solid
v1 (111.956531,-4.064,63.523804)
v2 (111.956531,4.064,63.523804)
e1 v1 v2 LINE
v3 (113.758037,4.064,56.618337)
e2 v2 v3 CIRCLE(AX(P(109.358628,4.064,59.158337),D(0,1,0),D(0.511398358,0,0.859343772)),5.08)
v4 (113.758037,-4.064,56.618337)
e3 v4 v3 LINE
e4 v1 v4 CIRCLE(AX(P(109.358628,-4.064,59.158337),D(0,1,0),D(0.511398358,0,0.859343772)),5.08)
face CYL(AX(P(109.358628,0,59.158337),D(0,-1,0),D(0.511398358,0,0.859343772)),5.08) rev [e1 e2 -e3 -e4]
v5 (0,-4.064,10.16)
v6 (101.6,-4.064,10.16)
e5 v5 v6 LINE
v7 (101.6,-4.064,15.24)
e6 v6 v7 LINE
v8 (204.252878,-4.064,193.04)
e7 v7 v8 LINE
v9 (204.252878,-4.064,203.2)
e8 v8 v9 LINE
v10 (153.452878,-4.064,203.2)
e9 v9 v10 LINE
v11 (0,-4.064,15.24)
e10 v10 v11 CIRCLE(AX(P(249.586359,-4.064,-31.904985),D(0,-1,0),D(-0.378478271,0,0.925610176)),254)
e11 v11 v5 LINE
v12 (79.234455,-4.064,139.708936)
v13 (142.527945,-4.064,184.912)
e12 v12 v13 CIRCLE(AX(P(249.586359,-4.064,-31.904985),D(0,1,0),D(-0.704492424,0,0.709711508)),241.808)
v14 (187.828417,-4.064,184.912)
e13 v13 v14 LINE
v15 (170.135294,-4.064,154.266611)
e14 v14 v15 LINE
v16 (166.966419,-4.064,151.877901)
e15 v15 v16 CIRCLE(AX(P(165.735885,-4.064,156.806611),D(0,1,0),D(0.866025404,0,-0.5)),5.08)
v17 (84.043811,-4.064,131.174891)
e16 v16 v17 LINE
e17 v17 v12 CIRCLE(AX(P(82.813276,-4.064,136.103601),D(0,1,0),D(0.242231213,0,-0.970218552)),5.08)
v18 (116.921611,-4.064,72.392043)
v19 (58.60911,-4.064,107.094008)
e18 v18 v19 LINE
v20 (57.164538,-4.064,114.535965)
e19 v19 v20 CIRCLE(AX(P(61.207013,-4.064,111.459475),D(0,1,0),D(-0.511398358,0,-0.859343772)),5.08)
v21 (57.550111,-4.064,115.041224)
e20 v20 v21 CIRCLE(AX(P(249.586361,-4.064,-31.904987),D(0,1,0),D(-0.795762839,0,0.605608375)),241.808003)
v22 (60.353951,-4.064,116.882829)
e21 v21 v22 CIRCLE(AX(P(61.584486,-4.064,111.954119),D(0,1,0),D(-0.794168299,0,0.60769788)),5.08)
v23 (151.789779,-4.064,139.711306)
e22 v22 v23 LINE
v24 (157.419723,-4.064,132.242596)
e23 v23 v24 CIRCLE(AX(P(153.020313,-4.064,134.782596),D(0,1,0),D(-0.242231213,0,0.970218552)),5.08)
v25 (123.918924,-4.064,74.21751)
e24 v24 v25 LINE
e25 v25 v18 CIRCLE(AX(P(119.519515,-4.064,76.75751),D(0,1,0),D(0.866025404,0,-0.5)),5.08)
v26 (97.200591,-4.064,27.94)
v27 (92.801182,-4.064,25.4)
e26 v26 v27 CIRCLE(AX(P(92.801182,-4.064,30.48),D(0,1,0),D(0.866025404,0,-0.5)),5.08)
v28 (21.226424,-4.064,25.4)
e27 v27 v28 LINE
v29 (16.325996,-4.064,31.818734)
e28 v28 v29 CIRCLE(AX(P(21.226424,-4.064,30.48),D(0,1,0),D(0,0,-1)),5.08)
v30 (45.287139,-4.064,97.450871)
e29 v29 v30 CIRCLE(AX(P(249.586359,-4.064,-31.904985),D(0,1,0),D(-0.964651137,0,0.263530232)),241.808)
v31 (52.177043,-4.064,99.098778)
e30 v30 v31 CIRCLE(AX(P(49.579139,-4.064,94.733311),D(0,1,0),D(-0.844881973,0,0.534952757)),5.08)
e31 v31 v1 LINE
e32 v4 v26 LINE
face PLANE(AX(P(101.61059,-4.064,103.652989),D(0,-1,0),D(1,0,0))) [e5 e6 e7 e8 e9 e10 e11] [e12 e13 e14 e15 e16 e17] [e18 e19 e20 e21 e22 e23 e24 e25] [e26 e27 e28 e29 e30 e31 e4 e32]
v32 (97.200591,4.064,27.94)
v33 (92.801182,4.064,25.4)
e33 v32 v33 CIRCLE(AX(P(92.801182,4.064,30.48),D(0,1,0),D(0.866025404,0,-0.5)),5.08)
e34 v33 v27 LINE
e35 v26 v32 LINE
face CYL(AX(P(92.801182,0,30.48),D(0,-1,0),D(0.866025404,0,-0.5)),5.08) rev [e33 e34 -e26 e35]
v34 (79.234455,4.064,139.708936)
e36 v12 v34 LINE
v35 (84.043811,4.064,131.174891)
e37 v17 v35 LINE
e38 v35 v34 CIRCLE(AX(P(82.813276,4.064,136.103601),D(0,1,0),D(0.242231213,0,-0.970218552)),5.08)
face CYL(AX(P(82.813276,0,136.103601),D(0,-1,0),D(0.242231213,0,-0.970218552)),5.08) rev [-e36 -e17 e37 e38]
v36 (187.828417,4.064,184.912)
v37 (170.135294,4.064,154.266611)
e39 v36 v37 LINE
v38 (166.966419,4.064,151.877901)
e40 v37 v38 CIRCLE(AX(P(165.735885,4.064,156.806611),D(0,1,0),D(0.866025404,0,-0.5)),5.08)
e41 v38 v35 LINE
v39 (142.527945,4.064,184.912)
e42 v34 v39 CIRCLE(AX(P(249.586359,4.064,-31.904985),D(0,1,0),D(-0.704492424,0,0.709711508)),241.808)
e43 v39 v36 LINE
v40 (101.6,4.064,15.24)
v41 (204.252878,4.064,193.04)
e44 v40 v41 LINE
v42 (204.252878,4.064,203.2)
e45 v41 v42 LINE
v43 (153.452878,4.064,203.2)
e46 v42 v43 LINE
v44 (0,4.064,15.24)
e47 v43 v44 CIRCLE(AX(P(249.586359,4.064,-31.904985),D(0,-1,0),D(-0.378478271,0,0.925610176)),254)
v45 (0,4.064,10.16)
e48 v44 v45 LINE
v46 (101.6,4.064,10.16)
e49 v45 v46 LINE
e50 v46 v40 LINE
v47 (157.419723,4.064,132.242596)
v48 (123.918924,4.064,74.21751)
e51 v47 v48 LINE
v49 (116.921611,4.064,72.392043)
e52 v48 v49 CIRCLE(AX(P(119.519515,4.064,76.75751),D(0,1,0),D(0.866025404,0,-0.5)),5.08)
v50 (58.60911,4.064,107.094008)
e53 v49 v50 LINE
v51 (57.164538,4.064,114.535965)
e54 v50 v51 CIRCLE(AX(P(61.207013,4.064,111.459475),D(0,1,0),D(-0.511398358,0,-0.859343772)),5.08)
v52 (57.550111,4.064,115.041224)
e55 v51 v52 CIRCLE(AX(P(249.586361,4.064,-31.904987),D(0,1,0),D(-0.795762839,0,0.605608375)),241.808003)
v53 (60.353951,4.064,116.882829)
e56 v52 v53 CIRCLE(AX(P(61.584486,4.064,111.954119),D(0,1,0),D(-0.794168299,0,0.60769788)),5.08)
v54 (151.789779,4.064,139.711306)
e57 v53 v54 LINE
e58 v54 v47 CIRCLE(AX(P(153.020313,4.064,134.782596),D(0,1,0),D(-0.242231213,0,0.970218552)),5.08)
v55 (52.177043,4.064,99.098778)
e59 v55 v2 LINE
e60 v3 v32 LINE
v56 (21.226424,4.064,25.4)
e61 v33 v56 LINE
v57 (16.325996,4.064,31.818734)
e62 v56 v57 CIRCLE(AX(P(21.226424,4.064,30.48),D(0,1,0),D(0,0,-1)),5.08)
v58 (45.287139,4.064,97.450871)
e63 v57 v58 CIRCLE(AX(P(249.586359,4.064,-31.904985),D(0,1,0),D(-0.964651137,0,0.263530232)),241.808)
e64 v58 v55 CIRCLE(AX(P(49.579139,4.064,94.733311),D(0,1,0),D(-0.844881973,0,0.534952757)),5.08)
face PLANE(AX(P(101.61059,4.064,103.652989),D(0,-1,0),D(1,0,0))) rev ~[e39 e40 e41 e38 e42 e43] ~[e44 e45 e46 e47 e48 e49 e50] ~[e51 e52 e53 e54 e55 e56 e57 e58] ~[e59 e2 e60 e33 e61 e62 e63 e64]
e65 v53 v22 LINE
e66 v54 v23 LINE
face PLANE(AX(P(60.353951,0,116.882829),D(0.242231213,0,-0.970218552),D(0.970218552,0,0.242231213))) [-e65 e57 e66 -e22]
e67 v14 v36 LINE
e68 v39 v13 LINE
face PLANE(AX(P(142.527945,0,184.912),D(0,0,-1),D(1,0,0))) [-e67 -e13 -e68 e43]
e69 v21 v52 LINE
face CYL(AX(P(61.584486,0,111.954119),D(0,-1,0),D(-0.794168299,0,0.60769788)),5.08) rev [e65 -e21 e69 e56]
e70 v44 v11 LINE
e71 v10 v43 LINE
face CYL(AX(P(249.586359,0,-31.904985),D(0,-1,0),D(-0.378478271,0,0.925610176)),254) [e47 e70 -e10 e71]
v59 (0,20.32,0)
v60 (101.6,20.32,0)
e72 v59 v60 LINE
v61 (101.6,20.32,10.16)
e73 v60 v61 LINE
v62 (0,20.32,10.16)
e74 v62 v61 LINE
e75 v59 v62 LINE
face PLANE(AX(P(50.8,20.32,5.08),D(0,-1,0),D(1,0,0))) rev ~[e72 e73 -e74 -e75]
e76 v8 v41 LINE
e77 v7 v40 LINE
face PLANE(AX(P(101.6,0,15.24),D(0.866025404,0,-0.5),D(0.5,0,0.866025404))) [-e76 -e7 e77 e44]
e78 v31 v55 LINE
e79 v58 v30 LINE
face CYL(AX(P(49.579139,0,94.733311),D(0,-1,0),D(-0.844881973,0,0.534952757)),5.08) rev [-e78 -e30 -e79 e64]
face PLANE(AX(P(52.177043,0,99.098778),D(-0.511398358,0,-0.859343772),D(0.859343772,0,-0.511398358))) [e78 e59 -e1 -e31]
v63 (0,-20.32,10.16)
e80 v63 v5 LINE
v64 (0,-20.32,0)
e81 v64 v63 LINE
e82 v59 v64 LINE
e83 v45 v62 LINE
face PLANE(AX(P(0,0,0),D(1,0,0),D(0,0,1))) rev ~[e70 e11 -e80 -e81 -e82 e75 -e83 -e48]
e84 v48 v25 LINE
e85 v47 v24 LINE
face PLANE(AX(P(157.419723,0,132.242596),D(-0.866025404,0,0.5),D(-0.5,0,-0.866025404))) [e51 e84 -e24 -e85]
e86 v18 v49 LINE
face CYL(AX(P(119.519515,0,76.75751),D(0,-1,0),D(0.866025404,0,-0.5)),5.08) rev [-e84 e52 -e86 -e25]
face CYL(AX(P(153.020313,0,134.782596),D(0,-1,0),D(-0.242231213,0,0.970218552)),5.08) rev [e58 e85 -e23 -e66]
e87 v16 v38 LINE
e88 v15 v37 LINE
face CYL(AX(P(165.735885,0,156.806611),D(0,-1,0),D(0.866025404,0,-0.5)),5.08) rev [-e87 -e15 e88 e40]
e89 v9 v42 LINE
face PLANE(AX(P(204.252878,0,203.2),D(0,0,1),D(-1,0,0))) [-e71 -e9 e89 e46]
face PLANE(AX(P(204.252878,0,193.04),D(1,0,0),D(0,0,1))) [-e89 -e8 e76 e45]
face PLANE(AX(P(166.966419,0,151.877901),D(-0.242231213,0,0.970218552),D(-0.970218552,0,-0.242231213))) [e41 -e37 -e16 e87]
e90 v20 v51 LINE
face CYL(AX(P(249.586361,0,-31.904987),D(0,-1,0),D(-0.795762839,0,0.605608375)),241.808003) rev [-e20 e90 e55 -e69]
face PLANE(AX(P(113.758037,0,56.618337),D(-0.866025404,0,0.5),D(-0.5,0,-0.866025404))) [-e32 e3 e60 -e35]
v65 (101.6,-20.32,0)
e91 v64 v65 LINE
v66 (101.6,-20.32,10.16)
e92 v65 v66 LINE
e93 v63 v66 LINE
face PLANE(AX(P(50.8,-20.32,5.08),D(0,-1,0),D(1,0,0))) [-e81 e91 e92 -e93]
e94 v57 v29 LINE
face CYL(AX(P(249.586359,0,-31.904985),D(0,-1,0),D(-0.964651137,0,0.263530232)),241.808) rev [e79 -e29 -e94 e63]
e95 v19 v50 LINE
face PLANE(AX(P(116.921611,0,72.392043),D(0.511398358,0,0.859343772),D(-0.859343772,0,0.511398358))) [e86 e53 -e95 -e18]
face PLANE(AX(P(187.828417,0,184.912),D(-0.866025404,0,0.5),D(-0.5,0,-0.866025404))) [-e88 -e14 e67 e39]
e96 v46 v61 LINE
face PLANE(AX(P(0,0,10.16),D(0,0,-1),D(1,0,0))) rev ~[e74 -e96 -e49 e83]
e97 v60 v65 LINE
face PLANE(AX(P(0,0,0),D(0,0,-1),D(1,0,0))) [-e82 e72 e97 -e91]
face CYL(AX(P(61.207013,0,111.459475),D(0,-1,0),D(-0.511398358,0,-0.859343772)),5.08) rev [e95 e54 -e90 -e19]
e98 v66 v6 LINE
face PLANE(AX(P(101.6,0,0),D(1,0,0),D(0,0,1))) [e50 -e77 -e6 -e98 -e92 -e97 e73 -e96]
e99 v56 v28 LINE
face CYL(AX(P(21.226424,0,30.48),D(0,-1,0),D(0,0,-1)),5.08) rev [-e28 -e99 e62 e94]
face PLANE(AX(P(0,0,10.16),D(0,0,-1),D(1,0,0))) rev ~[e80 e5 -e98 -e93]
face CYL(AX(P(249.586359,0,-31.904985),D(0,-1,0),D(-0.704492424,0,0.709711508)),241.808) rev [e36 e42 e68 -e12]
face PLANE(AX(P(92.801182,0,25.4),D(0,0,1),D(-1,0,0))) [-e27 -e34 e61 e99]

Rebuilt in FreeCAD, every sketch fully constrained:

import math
import FreeCAD as App
import Part
import Sketcher
from FreeCAD import Vector
Q = App.Units.Quantity


def add_polygon(sketch, points):
    """Adds a closed chain of lines whose ends are joined by coincident constraints."""
    first, n = sketch.GeometryCount, len(points)
    for a, b in zip(points, points[1:] + points[:1]):
        sketch.addGeometry(Part.LineSegment(App.Vector(*a, 0), App.Vector(*b, 0)), False)
    for i in range(n):
        sketch.addConstraint(Sketcher.Constraint("Coincident", first + i, 2, first + (i + 1) % n, 1))

doc = App.newDocument("Part")
body = doc.addObject("PartDesign::Body", "Body")

sketch1 = doc.addObject("Sketcher::SketchObject", "Sketch")
body.addObject(sketch1)
sketch1.AttachmentSupport = (doc.XZ_Plane, [""])
sketch1.MapMode = "FlatFace"
sketch1.addGeometry([
    Part.ArcOfCircle(Part.Circle(Vector(249.586359, -31.904985, 0), Vector(0, 0, 1), 254), math.radians(112.239455), math.radians(169.303291)),
    Part.LineSegment(Vector(0, 15.24, 0), Vector(0, 10.16, 0)),
    Part.LineSegment(Vector(0, 10.16, 0), Vector(101.6, 10.16, 0)),
    Part.LineSegment(Vector(101.6, 10.16, 0), Vector(101.6, 15.24, 0)),
    Part.LineSegment(Vector(101.6, 15.24, 0), Vector(204.252878, 193.04, 0)),
    Part.LineSegment(Vector(204.252878, 193.04, 0), Vector(204.252878, 203.2, 0)),
    Part.LineSegment(Vector(204.252878, 203.2, 0), Vector(153.452878, 203.2, 0)),
    Part.ArcOfCircle(Part.Circle(Vector(92.801182, 30.48, 0), Vector(0, 0, 1), 5.08), math.radians(-90), math.radians(-30)),
    Part.LineSegment(Vector(92.801182, 25.4, 0), Vector(21.226424, 25.4, 0)),
    Part.ArcOfCircle(Part.Circle(Vector(21.226424, 30.48, 0), Vector(0, 0, 1), 5.08), math.radians(164.720363), math.radians(270)),
    Part.ArcOfCircle(Part.Circle(Vector(249.586359, -31.904985, 0), Vector(0, 0, 1), 241.808), math.radians(147.659292), math.radians(164.720363)),
    Part.ArcOfCircle(Part.Circle(Vector(49.579139, 94.733311, 0), Vector(0, 0, 1), 5.08), math.radians(59.242981), math.radians(147.659292)),
    Part.LineSegment(Vector(52.177043, 99.098778, 0), Vector(111.956531, 63.523804, 0)),
    Part.ArcOfCircle(Part.Circle(Vector(109.358628, 59.158337, 0), Vector(0, 0, 1), 5.08), math.radians(-30), math.radians(59.242981)),
    Part.LineSegment(Vector(113.758037, 56.618337, 0), Vector(97.200591, 27.94, 0)),
    Part.ArcOfCircle(Part.Circle(Vector(61.584486, 111.954119, 0), Vector(0, 0, 1), 5.08), math.radians(104.018266), math.radians(142.57677)),
    Part.LineSegment(Vector(60.353951, 116.882829, 0), Vector(151.789779, 139.711306, 0)),
    Part.ArcOfCircle(Part.Circle(Vector(153.020313, 134.782596, 0), Vector(0, 0, 1), 5.08), math.radians(-30), math.radians(104.018266)),
    Part.LineSegment(Vector(157.419723, 132.242596, 0), Vector(123.918924, 74.21751, 0)),
    Part.ArcOfCircle(Part.Circle(Vector(119.519515, 76.75751, 0), Vector(0, 0, 1), 5.08), math.radians(-120.757019), math.radians(-30)),
    Part.LineSegment(Vector(116.921611, 72.392043, 0), Vector(58.60911, 107.094008, 0)),
    Part.ArcOfCircle(Part.Circle(Vector(61.207013, 111.459475, 0), Vector(0, 0, 1), 5.08), math.radians(142.727367), math.radians(239.242981)),
    Part.ArcOfCircle(Part.Circle(Vector(249.586361, -31.904987, 0), Vector(0, 0, 1), 241.808003), math.radians(142.57677), math.radians(142.727367)),
    Part.ArcOfCircle(Part.Circle(Vector(249.586359, -31.904985, 0), Vector(0, 0, 1), 241.808), math.radians(116.278925), math.radians(134.788552)),
    Part.LineSegment(Vector(142.527945, 184.912, 0), Vector(187.828417, 184.912, 0)),
    Part.LineSegment(Vector(187.828417, 184.912, 0), Vector(170.135294, 154.266611, 0)),
    Part.ArcOfCircle(Part.Circle(Vector(165.735885, 156.806611, 0), Vector(0, 0, 1), 5.08), math.radians(-75.981734), math.radians(-30)),
    Part.LineSegment(Vector(166.966419, 151.877901, 0), Vector(84.043811, 131.174891, 0)),
    Part.ArcOfCircle(Part.Circle(Vector(82.813276, 136.103601, 0), Vector(0, 0, 1), 5.08), math.radians(134.788552), math.radians(284.018266)),
], False)
sketch1.addConstraint([
    Sketcher.Constraint("Coincident", 0, 2, 1, 1),
    Sketcher.Constraint("Coincident", 1, 2, 2, 1),
    Sketcher.Constraint("Coincident", 2, 2, 3, 1),
    Sketcher.Constraint("Coincident", 3, 2, 4, 1),
    Sketcher.Constraint("Coincident", 4, 2, 5, 1),
    Sketcher.Constraint("Coincident", 5, 2, 6, 1),
    Sketcher.Constraint("Coincident", 6, 2, 0, 1),
    Sketcher.Constraint("Coincident", 7, 1, 8, 1),
    Sketcher.Constraint("Coincident", 8, 2, 9, 2),
    Sketcher.Constraint("Coincident", 9, 1, 10, 2),
    Sketcher.Constraint("Coincident", 10, 1, 11, 2),
    Sketcher.Constraint("Coincident", 11, 1, 12, 1),
    Sketcher.Constraint("Coincident", 12, 2, 13, 2),
    Sketcher.Constraint("Coincident", 13, 1, 14, 1),
    Sketcher.Constraint("Coincident", 14, 2, 7, 2),
    Sketcher.Constraint("Coincident", 15, 1, 16, 1),
    Sketcher.Constraint("Coincident", 16, 2, 17, 2),
    Sketcher.Constraint("Coincident", 17, 1, 18, 1),
    Sketcher.Constraint("Coincident", 18, 2, 19, 2),
    Sketcher.Constraint("Coincident", 19, 1, 20, 1),
    Sketcher.Constraint("Coincident", 20, 2, 21, 2),
    Sketcher.Constraint("Coincident", 21, 1, 22, 2),
    Sketcher.Constraint("Coincident", 22, 1, 15, 2),
    Sketcher.Constraint("Coincident", 23, 1, 24, 1),
    Sketcher.Constraint("Coincident", 24, 2, 25, 1),
    Sketcher.Constraint("Coincident", 25, 2, 26, 2),
    Sketcher.Constraint("Coincident", 26, 1, 27, 1),
    Sketcher.Constraint("Coincident", 27, 2, 28, 2),
    Sketcher.Constraint("Coincident", 28, 1, 23, 2),
    Sketcher.Constraint("Vertical", 1),
    Sketcher.Constraint("Horizontal", 2),
    Sketcher.Constraint("Vertical", 3),
    Sketcher.Constraint("Vertical", 5),
    Sketcher.Constraint("Horizontal", 6),
    Sketcher.Constraint("Horizontal", 8),
    Sketcher.Constraint("Horizontal", 24),
    Sketcher.Constraint("Coincident", 10, 3, 0, 3),
    Sketcher.Constraint("Coincident", 22, 3, 0, 3),
    Sketcher.Constraint("Coincident", 23, 3, 0, 3),
    Sketcher.Constraint("PointOnObject", 0, 2, -2),
    Sketcher.Constraint("Radius", 0, Q("10 in")),
    Sketcher.Constraint("Radius", 7, Q("0.2 in")),
    Sketcher.Constraint("Radius", 9, Q("0.2 in")),
    Sketcher.Constraint("Radius", 11, Q("0.2 in")),
    Sketcher.Constraint("Radius", 13, Q("0.2 in")),
    Sketcher.Constraint("Radius", 15, Q("0.2 in")),
    Sketcher.Constraint("Radius", 17, Q("0.2 in")),
    Sketcher.Constraint("Radius", 19, Q("0.2 in")),
    Sketcher.Constraint("Radius", 21, Q("0.2 in")),
    Sketcher.Constraint("Radius", 26, Q("0.2 in")),
    Sketcher.Constraint("Radius", 28, Q("0.2 in")),
    Sketcher.Constraint("DistanceX", 2, 1, 2, 2, Q("4 in")),
    Sketcher.Constraint("DistanceX", 6, 2, 6, 1, Q("2 in")),
    Sketcher.Constraint("Radius", 10, Q("9.52 in")),
    Sketcher.Constraint("Radius", 22, Q("9.5200001 in")),
    Sketcher.Constraint("Radius", 23, Q("9.52 in")),
    Sketcher.Constraint("DistanceY", 1, 2, 1, 1, Q("0.2 in")),
    Sketcher.Constraint("DistanceY", 3, 1, 3, 2, Q("0.2 in")),
    Sketcher.Constraint("DistanceY", 5, 1, 5, 2, Q("0.4 in")),
    Sketcher.Constraint("DistanceY", -1, 1, 5, 2, Q("8 in")),
    Sketcher.Constraint("DistanceY", -1, 1, 7, 1, Q("1 in")),
    Sketcher.Constraint("DistanceY", -1, 1, 1, 2, Q("0.4 in")),
    Sketcher.Constraint("DistanceY", -1, 1, 14, 2, Q("1.1 in")),
    Sketcher.Constraint("DistanceY", 13, 1, 13, 3, Q("0.1 in")),
    Sketcher.Constraint("DistanceY", 17, 1, 17, 3, Q("0.1 in")),
    Sketcher.Constraint("DistanceY", 18, 2, 19, 3, Q("0.1 in")),
    Sketcher.Constraint("DistanceY", 25, 2, 26, 3, Q("0.1 in")),
    Sketcher.Constraint("DistanceY", -1, 1, 23, 1, Q("7.28 in")),
    Sketcher.Constraint("DistanceX", 11, 3, 10, 3, Q("7.8743 in")),
    Sketcher.Constraint("DistanceX", 9, 3, 15, 3, Q("1.5889001 in")),
    Sketcher.Constraint("DistanceY", 13, 3, 21, 3, Q("2.0590999 in")),
    Sketcher.Constraint("DistanceY", -1, 1, 28, 3, Q("136.103601 mm")),
    Sketcher.Constraint("DistanceY", -1, 1, 26, 1, Q("151.877901 mm")),
    Sketcher.Constraint("DistanceX", 19, 3, 17, 3, Q("33.500799 mm")),
    Sketcher.Constraint("DistanceY", 19, 3, 11, 3, Q("17.975802 mm")),
    Sketcher.Constraint("DistanceX", 21, 3, 19, 3, Q("58.312501 mm")),
    Sketcher.Constraint("DistanceY", 19, 3, 26, 3, Q("80.049101 mm")),
    Sketcher.Constraint("DistanceX", 15, 3, 26, 3, Q("104.151399 mm")),
    Sketcher.Constraint("DistanceX", 28, 3, 4, 2, Q("121.439602 mm")),
    Sketcher.Constraint("DistanceX", 10, 1, 11, 3, Q("4.292 mm")),
    Sketcher.Constraint("DistanceX", 16, 2, 6, 2, Q("1.663099 mm")),
    Sketcher.Constraint("DistanceX", 22, 1, 20, 2, Q("1.058999 mm")),
    Sketcher.Constraint("DistanceX", 22, 1, 27, 2, Q("26.4937 mm")),
    Sketcher.Constraint("Distance", 14, Q("33.114892 mm")),
    Sketcher.Constraint("Distance", 27, Q("85.467968 mm")),
    Sketcher.Constraint("DistanceX", 8, 2, 8, 1, Q("71.574758 mm")),
    Sketcher.Constraint("DistanceX", 24, 1, 24, 2, Q("45.300473 mm")),
    Sketcher.Constraint("DistanceX", -1, 1, 7, 3, Q("92.801182 mm")),
    Sketcher.Constraint("DistanceX", -1, 1, 7, 1, Q("92.801182 mm")),
    Sketcher.Constraint("DistanceX", -1, 1, 12, 2, Q("111.956531 mm")),
    Sketcher.Constraint("DistanceX", -1, 1, 15, 1, Q("60.353951 mm")),
    Sketcher.Constraint("DistanceX", -1, 1, 19, 1, Q("116.921611 mm")),
    Sketcher.Constraint("DistanceY", -1, 1, 20, 2, Q("107.094008 mm")),
    Sketcher.Constraint("DistanceX", -1, 1, 21, 1, Q("57.164538 mm")),
    Sketcher.Constraint("DistanceY", 13, 3, 17, 3, Q("75.624258 mm")),
    Sketcher.Constraint("DistanceX", 11, 1, 21, 3, Q("9.029971 mm")),
    Sketcher.Constraint("DistanceX", 28, 1, 28, 3, Q("3.578822 mm")),
    Sketcher.Constraint("DistanceX", -1, 1, 9, 1, Q("16.325996 mm")),
])
pad1 = doc.addObject("PartDesign::Pad", "Pad")
body.addObject(pad1)
pad1.Profile = sketch1
pad1.Length = Q("0.32 in")
pad1.Midplane = True

sketch2 = doc.addObject("Sketcher::SketchObject", "Sketch001")
body.addObject(sketch2)
sketch2.AttachmentSupport = (doc.XZ_Plane, [""])
sketch2.MapMode = "FlatFace"
add_polygon(sketch2, [(0, 10), (0, 0), (102, 0), (102, 10)])
sketch2.addConstraint([
    Sketcher.Constraint("Vertical", 0),
    Sketcher.Constraint("Horizontal", 1),
    Sketcher.Constraint("Vertical", 2),
    Sketcher.Constraint("Horizontal", 3),
    Sketcher.Constraint("Coincident", 0, 2, -1, 1),
    Sketcher.Constraint("DistanceX", 1, 1, 1, 2, Q("4 in")),
    Sketcher.Constraint("DistanceY", 0, 2, 0, 1, Q("0.4 in")),
])
pad2 = doc.addObject("PartDesign::Pad", "Pad001")
body.addObject(pad2)
pad2.Profile = sketch2
pad2.Length = Q("1.6 in")
pad2.Midplane = True

doc.recompute()
